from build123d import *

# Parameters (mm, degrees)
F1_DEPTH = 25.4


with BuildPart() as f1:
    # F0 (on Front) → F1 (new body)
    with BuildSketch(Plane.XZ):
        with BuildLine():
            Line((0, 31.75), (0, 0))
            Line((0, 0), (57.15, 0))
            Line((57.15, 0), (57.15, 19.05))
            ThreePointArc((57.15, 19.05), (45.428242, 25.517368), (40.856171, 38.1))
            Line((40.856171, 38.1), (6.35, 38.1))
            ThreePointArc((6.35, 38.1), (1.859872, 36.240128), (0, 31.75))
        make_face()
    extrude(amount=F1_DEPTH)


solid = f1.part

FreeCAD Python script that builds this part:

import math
import FreeCAD as App
import Part
import Sketcher
Q = App.Units.Quantity

doc = App.newDocument("Part")
body = doc.addObject("PartDesign::Body", "Body")

# Sketch on XZ plane
sketch1 = body.newObject("Sketcher::SketchObject", "Sketch")
sketch1.AttachmentSupport = (doc.getObject("XZ_Plane"), [""])
sketch1.MapMode = "FlatFace"
sketch1.addGeometry(Part.LineSegment(App.Vector(0, 31.75, 0), App.Vector(0, 0, 0)), False)
sketch1.addGeometry(Part.LineSegment(App.Vector(0, 0, 0), App.Vector(57.15, 0, 0)), False)
sketch1.addGeometry(Part.LineSegment(App.Vector(57.15, 0, 0), App.Vector(57.15, 19.05, 0)), False)
sketch1.addGeometry(Part.ArcOfCircle(Part.Circle(App.Vector(59.905118, 37.899716, 0), App.Vector(0, 0, 1), 19.05), math.radians(179.397606), math.radians(261.6844)), False)
sketch1.addGeometry(Part.LineSegment(App.Vector(40.856171, 38.1, 0), App.Vector(6.35, 38.1, 0)), False)
sketch1.addGeometry(Part.ArcOfCircle(Part.Circle(App.Vector(6.35, 31.75, 0), App.Vector(0, 0, 1), 6.35), math.radians(90.000002), math.radians(179.999998)), False)
sketch1.addConstraint(Sketcher.Constraint("Coincident", 0, 2, 1, 1))
sketch1.addConstraint(Sketcher.Constraint("Coincident", 1, 2, 2, 1))
sketch1.addConstraint(Sketcher.Constraint("Coincident", 2, 2, 3, 2))
sketch1.addConstraint(Sketcher.Constraint("Coincident", 3, 1, 4, 1))
sketch1.addConstraint(Sketcher.Constraint("Tangent", 4, 2, 5, 1))
sketch1.addConstraint(Sketcher.Constraint("Tangent", 5, 2, 0, 1))
sketch1.addConstraint(Sketcher.Constraint("Vertical", 0))
sketch1.addConstraint(Sketcher.Constraint("Horizontal", 1))
sketch1.addConstraint(Sketcher.Constraint("Vertical", 2))
sketch1.addConstraint(Sketcher.Constraint("Horizontal", 4))
sketch1.addConstraint(Sketcher.Constraint("Coincident", 0, 2, -1, 1))
sketch1.addConstraint(Sketcher.Constraint("Radius", 3, Q("0.75 in")))
sketch1.addConstraint(Sketcher.Constraint("Radius", 5, Q("0.25 in")))
sketch1.addConstraint(Sketcher.Constraint("DistanceX", 5, 3, 1, 2, Q("2 in")))
sketch1.addConstraint(Sketcher.Constraint("DistanceY", 0, 2, 0, 1, Q("1.25 in")))
sketch1.addConstraint(Sketcher.Constraint("DistanceY", 2, 1, 2, 2, Q("0.75 in")))
sketch1.addConstraint(Sketcher.Constraint("DistanceX", 4, 2, 4, 1, Q("34.506171 mm")))
pad1 = body.newObject("PartDesign::Pad", "Pad")
pad1.Profile = sketch1
pad1.Length = Q("1 in")

doc.recompute()
